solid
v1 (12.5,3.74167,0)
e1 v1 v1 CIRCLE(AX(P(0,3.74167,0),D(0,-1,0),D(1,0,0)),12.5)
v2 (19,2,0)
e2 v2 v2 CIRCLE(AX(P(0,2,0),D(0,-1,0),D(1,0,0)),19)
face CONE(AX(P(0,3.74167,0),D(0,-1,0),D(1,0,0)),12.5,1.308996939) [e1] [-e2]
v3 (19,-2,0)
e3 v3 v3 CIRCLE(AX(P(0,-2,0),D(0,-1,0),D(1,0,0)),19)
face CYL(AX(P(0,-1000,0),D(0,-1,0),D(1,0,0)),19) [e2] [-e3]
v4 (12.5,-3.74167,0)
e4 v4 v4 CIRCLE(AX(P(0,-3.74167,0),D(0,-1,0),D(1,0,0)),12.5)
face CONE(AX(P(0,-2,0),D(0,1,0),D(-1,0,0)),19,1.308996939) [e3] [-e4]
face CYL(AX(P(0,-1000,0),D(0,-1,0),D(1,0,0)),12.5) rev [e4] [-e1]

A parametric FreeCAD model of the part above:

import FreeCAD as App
import Part
import Sketcher
from FreeCAD import Vector
Q = App.Units.Quantity

doc = App.newDocument("Part")
params = doc.addObject("Spreadsheet::Sheet", "Params")
for row, (alias, value) in enumerate([
    ("sketch1_height", "4 mm"),
    ("revolution_angle", "360 deg"),
], start=1):
    params.set(f"A{row}", alias)
    params.set(f"B{row}", "=" + value)
    params.setAlias(f"B{row}", alias)

body = doc.addObject("PartDesign::Body", "Body")

# Sketch on XY plane
sketch1 = body.newObject("Sketcher::SketchObject", "Sketch")
sketch1.AttachmentSupport = (doc.getObject("XY_Plane"), [""])
sketch1.MapMode = "FlatFace"
sketch1.addGeometry(Part.LineSegment(Vector(-12.5, 3.74167, 0), Vector(-19, 2, 0)), False)
sketch1.addGeometry(Part.LineSegment(Vector(-19, 2, 0), Vector(-19, -2, 0)), False)
sketch1.addGeometry(Part.LineSegment(Vector(-19, -2, 0), Vector(-12.5, -3.74167, 0)), False)
sketch1.addGeometry(Part.LineSegment(Vector(-12.5, -3.74167, 0), Vector(-12.5, 3.74167, 0)), False)
sketch1.addConstraint(Sketcher.Constraint("Coincident", 0, 2, 1, 1))
sketch1.addConstraint(Sketcher.Constraint("Coincident", 1, 2, 2, 1))
sketch1.addConstraint(Sketcher.Constraint("Coincident", 2, 2, 3, 1))
sketch1.addConstraint(Sketcher.Constraint("Coincident", 3, 2, 0, 1))
sketch1.addConstraint(Sketcher.Constraint("Vertical", 1))
sketch1.addConstraint(Sketcher.Constraint("Vertical", 3))
sketch1.addConstraint(Sketcher.Constraint("Equal", 0, 2))
sketch1.addConstraint(Sketcher.Constraint("DistanceY", 1, 2, 1, 1, Q("4 mm")))
sketch1.addConstraint(Sketcher.Constraint("Angle", 0, Q("-165 deg")))
sketch1.addConstraint(Sketcher.Constraint("DistanceX", 0, 2, -1, 1, Q("19 mm")))
sketch1.addConstraint(Sketcher.Constraint("DistanceY", -1, 1, 0, 2, Q("2 mm")))
sketch1.addConstraint(Sketcher.Constraint("DistanceX", 2, 2, -1, 1, Q("12.5 mm")))
sketch1.setExpression("Constraints[7]", "Params.sketch1_height")
revolution = body.newObject("PartDesign::Revolution", "Revolution")
revolution.Profile = sketch1
revolution.ReferenceAxis = (sketch1, ["V_Axis"])
revolution.setExpression("Angle", "Params.revolution_angle")

doc.recompute()
